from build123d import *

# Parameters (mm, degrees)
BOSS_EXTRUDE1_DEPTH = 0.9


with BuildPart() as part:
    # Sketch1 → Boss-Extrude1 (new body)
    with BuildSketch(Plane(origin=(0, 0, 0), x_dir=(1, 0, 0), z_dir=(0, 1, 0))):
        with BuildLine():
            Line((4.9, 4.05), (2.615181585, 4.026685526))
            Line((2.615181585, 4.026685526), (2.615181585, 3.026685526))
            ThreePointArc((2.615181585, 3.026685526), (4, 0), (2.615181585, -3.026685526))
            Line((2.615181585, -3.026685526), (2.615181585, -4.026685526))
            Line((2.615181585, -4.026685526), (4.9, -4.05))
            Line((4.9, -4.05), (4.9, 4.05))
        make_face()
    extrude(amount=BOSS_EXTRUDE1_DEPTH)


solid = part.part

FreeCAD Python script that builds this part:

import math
import FreeCAD as App
import Part
import Sketcher
from FreeCAD import Vector

doc = App.newDocument("Part")
body = doc.addObject("PartDesign::Body", "Body")

sketch1 = body.newObject("Sketcher::SketchObject", "Sketch")
sketch1.AttachmentSupport = (doc.getObject("XZ_Plane"), [""])
sketch1.MapMode = "FlatFace"
sketch1.addGeometry([
    Part.LineSegment(Vector(4.9, -4, 0), Vector(2.6, -4, 0)),
    Part.LineSegment(Vector(2.6, -4, 0), Vector(2.6, -3, 0)),
    Part.ArcOfCircle(Part.Circle(Vector(0, 0, 0), Vector(0, 0, 1), 4), math.radians(-49), math.radians(49)),
    Part.LineSegment(Vector(2.6, 3, 0), Vector(2.6, 4, 0)),
    Part.LineSegment(Vector(2.6, 4, 0), Vector(4.9, 4, 0)),
    Part.LineSegment(Vector(4.9, 4, 0), Vector(4.9, -4, 0)),
], False)
sketch1.addConstraint([
    Sketcher.Constraint("Coincident", 0, 2, 1, 1),
    Sketcher.Constraint("Coincident", 1, 2, 2, 1),
    Sketcher.Constraint("Coincident", 2, 2, 3, 1),
    Sketcher.Constraint("Coincident", 3, 2, 4, 1),
    Sketcher.Constraint("Coincident", 4, 2, 5, 1),
    Sketcher.Constraint("Coincident", 5, 2, 0, 1),
    Sketcher.Constraint("Vertical", 1),
    Sketcher.Constraint("Vertical", 3),
    Sketcher.Constraint("Vertical", 5),
    Sketcher.Constraint("Coincident", 2, 3, -1, 1),
    Sketcher.Constraint("Symmetric", 0, 2, 3, 2, -1),
    Sketcher.Constraint("Equal", 0, 4),
    Sketcher.Constraint("Radius", 2, 4.0),
    Sketcher.Constraint("DistanceY", 1, 1, 1, 2, 1.0),
    Sketcher.Constraint("DistanceY", 5, 2, 5, 1, 8.1),
    Sketcher.Constraint("DistanceX", -1, 1, 4, 2, 4.9),
    Sketcher.Constraint("DistanceX", -1, 1, 0, 2, 2.615182),
])
pad1 = body.newObject("PartDesign::Pad", "Pad")
pad1.Profile = sketch1
pad1.Length = 0.9
pad1.Reversed = True

doc.recompute()
